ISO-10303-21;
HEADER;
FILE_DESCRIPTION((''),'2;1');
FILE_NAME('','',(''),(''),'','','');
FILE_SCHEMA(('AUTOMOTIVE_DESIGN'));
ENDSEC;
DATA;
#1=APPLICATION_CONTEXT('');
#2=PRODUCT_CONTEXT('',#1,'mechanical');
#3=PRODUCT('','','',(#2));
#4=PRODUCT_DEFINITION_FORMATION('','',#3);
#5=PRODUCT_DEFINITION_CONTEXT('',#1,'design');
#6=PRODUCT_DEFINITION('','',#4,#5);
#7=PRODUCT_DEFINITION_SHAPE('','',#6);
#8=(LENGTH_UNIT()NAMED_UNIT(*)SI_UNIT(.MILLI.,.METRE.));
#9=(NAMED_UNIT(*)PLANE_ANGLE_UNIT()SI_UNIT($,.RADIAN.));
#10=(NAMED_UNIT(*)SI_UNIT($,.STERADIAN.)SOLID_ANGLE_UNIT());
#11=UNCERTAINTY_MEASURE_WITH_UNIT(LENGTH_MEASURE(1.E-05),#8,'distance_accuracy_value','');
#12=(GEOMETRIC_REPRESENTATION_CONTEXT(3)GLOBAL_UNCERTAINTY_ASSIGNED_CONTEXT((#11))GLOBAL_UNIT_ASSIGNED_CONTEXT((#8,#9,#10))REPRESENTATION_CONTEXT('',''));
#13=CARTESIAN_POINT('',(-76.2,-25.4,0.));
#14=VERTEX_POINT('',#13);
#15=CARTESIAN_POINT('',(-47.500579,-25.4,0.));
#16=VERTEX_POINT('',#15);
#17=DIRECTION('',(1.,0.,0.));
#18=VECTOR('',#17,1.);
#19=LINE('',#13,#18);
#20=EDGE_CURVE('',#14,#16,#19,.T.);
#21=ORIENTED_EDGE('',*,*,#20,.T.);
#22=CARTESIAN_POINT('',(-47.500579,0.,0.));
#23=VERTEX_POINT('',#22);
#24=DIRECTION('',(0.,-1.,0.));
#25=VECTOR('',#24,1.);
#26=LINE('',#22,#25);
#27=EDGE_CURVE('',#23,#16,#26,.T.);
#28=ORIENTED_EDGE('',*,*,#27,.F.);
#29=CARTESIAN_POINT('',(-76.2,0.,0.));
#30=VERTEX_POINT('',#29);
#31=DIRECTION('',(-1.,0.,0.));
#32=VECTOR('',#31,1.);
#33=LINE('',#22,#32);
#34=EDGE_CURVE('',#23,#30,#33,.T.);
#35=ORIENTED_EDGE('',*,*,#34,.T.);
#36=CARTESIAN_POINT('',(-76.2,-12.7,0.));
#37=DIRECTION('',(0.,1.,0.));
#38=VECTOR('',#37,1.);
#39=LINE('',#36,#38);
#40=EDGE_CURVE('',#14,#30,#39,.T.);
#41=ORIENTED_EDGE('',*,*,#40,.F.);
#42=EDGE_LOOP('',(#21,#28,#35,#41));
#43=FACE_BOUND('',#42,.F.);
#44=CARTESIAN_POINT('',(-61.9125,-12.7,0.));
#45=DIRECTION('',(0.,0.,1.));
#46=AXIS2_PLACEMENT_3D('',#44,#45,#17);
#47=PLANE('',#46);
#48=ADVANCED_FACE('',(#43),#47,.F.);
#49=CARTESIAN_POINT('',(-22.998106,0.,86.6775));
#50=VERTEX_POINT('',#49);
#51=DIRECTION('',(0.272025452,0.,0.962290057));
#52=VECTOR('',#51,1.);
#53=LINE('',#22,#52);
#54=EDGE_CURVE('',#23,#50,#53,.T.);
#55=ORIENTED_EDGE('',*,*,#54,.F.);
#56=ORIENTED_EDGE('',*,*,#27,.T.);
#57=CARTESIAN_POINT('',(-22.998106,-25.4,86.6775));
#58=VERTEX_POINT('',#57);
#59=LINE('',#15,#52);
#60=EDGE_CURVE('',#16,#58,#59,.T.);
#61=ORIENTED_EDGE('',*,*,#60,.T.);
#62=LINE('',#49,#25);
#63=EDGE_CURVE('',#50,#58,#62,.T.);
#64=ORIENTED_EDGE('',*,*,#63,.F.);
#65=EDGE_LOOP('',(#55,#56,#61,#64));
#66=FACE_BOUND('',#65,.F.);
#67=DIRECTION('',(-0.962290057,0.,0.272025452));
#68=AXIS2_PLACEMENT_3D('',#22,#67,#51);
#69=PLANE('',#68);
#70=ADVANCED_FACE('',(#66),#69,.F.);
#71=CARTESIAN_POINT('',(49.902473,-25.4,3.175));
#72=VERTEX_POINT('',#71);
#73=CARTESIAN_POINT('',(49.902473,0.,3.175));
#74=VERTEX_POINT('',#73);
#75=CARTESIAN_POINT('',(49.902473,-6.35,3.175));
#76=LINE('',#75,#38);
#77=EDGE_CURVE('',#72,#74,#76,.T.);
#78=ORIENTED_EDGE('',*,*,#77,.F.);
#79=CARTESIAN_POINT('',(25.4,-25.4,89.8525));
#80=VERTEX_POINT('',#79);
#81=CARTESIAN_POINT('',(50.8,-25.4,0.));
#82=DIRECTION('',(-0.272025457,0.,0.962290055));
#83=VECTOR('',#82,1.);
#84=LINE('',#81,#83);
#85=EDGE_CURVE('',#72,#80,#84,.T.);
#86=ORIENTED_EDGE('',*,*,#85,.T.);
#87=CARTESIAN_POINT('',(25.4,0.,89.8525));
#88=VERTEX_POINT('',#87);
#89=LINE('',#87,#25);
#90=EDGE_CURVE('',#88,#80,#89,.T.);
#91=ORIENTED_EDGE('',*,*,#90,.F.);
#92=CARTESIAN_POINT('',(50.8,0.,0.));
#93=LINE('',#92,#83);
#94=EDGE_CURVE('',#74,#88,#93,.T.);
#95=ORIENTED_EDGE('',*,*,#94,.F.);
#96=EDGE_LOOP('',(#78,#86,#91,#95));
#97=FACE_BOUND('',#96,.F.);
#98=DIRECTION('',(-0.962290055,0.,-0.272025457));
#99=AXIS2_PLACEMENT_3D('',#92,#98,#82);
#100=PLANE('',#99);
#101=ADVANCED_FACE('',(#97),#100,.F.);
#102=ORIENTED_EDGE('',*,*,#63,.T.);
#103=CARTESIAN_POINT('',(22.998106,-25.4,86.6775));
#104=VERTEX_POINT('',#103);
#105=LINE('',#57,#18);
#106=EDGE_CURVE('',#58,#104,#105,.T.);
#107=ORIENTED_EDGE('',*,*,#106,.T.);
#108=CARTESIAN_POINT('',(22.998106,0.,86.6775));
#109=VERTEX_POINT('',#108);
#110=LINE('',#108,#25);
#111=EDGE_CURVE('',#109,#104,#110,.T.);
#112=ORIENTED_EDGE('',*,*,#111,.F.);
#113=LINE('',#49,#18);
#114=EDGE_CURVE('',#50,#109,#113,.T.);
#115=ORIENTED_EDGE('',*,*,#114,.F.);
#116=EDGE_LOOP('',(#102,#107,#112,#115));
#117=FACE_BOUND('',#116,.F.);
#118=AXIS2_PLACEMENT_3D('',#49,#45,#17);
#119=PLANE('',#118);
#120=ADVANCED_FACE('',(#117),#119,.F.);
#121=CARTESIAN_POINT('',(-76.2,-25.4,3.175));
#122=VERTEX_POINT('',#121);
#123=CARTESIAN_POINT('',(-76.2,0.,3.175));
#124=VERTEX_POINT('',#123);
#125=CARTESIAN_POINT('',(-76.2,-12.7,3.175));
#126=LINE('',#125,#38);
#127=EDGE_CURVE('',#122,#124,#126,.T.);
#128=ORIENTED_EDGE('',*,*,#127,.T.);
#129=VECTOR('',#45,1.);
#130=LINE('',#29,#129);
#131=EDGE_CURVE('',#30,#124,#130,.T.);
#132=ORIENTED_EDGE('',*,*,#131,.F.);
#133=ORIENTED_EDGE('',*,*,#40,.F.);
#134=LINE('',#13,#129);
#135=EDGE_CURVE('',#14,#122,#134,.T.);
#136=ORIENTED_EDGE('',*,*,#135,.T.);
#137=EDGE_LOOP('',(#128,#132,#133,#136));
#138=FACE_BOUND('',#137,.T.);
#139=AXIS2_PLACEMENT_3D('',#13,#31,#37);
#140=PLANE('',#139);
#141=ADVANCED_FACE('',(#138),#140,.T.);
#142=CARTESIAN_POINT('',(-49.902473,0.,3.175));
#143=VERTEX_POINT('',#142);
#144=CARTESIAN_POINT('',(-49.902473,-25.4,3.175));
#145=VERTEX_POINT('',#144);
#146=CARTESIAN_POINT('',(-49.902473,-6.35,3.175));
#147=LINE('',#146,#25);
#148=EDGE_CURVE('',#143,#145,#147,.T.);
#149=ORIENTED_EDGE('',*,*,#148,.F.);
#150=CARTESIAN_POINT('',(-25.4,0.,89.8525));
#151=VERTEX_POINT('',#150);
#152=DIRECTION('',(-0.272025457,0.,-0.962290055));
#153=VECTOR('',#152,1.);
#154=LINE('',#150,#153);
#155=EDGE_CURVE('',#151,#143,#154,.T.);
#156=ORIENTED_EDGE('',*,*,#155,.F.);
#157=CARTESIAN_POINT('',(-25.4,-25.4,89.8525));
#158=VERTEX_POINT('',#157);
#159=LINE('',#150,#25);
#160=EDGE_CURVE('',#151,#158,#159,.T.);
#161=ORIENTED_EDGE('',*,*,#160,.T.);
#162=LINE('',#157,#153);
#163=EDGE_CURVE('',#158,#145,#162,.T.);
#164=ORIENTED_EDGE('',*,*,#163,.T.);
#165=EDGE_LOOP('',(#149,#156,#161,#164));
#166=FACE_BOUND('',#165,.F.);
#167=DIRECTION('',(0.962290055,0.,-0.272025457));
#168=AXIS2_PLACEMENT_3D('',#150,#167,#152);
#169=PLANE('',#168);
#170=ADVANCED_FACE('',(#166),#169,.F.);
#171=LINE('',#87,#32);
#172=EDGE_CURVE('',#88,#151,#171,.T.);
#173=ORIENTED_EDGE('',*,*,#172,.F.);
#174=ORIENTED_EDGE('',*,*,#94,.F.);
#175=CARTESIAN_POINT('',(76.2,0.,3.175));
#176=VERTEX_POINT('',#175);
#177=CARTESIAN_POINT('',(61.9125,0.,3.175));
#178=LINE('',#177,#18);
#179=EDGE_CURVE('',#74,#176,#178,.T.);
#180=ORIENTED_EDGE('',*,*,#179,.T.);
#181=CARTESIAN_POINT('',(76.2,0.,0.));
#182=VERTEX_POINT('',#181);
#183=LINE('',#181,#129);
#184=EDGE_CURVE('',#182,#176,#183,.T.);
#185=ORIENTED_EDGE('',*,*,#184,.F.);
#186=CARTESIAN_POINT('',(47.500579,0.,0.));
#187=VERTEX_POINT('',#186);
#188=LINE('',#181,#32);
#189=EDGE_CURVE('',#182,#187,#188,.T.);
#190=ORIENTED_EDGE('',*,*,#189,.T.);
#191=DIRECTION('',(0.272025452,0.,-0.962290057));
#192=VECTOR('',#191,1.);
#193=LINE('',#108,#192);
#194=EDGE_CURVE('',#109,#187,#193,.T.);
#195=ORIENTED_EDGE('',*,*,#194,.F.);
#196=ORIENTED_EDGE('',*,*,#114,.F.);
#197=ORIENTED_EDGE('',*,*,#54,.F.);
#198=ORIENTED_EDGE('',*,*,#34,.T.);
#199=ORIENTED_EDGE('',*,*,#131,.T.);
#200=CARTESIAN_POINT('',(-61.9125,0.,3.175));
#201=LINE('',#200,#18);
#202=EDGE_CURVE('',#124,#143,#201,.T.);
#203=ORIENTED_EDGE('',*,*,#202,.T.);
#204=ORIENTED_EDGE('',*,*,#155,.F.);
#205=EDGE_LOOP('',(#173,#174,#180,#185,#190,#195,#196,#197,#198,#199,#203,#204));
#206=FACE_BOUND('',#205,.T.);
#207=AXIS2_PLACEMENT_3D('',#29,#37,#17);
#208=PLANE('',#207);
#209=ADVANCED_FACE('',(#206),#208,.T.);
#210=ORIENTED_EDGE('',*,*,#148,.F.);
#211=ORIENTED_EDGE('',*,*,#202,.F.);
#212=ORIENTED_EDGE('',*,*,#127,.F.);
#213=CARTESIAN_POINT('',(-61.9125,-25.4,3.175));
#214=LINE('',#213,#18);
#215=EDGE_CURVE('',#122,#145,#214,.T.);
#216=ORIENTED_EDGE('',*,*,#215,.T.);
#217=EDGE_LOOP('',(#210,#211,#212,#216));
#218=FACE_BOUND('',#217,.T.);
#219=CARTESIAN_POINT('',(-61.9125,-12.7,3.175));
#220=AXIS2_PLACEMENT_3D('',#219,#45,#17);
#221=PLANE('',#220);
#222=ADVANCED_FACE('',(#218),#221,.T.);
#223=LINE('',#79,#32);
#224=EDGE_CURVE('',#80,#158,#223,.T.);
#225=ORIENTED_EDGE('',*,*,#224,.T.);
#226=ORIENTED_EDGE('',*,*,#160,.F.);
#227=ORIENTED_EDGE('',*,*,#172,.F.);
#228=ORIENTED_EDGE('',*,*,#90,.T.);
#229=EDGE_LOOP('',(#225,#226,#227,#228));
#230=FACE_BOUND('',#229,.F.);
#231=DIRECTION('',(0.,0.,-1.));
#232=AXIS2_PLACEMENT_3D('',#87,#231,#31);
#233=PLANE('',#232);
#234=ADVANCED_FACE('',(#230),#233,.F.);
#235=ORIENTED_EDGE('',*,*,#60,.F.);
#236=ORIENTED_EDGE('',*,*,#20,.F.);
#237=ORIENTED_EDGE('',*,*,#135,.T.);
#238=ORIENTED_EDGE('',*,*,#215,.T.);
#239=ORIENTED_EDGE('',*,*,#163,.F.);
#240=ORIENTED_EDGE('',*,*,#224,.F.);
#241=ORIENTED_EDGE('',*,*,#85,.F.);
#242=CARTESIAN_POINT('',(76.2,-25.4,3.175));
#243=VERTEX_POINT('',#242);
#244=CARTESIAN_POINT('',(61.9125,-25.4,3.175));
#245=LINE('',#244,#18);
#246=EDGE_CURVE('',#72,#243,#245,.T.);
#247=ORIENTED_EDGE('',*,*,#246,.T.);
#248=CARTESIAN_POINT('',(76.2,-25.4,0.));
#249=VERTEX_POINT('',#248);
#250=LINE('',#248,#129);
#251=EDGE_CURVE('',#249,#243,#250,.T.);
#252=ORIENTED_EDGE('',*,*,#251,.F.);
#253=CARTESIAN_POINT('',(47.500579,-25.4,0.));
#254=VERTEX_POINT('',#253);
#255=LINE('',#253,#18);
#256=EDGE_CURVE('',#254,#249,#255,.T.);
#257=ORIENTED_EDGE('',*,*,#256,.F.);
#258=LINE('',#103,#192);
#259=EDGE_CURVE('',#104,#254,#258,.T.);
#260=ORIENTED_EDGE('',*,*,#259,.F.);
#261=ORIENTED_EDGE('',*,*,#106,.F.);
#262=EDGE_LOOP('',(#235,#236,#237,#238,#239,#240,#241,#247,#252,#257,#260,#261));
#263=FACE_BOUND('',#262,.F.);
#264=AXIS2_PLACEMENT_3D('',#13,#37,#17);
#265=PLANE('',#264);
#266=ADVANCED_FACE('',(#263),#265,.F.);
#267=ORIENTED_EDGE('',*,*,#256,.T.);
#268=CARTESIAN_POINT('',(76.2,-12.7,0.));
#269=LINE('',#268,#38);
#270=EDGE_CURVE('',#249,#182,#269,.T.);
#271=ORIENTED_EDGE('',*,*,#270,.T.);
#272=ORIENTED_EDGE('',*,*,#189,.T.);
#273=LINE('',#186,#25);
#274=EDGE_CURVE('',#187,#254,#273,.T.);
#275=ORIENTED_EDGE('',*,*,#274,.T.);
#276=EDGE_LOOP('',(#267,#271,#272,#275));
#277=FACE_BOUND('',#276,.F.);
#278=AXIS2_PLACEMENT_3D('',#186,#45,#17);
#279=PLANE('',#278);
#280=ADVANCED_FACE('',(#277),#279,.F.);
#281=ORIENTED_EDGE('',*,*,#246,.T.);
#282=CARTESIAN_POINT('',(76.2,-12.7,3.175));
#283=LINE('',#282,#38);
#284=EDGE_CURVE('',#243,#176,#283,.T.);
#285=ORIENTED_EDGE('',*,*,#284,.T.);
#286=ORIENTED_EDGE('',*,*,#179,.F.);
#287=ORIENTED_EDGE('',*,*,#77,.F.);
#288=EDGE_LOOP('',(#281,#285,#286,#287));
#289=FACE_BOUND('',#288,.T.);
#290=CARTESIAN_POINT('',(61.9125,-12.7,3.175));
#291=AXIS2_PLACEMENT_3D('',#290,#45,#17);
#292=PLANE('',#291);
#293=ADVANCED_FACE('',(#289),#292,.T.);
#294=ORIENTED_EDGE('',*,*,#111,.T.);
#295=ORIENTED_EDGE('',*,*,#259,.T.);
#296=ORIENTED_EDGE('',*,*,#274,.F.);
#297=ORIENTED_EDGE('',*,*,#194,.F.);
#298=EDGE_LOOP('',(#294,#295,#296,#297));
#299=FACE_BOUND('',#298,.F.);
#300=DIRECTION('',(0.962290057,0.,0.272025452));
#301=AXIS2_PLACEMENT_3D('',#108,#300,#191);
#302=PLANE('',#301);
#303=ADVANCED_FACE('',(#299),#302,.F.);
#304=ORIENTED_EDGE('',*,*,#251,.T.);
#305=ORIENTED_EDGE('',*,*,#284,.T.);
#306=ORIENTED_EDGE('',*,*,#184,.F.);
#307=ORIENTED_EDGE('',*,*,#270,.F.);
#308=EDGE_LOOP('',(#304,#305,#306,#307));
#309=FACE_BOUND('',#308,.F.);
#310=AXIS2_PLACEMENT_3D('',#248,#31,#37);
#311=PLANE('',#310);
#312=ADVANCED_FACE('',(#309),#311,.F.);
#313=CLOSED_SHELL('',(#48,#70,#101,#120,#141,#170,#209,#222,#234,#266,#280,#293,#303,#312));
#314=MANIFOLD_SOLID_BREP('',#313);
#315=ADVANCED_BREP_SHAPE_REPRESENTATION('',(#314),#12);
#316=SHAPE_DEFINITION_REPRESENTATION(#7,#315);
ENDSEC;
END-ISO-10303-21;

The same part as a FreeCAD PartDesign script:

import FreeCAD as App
import Part
import Sketcher

V = App.Vector
Q = App.Units.Quantity


def add_polygon(sketch, points):
    """Adds a closed chain of lines whose ends are joined by coincident constraints."""
    first, n = sketch.GeometryCount, len(points)
    for a, b in zip(points, points[1:] + points[:1]):
        sketch.addGeometry(Part.LineSegment(App.Vector(*a, 0), App.Vector(*b, 0)), False)
    for i in range(n):
        sketch.addConstraint(Sketcher.Constraint("Coincident", first + i, 2, first + (i + 1) % n, 1))

doc = App.newDocument("Part")
params = doc.addObject("Spreadsheet::Sheet", "Params")
for row, (alias, value) in enumerate([
    ("sketch1_width", "2 in"),
    ("pad1_length", "1 in"),
    ("sketch2_height", "1 in"),
    ("sketch2_width", "1.125 in"),
    ("pad2_length", "0.125 in"),
], start=1):
    params.set(f"A{row}", alias)
    params.set(f"B{row}", "=" + value)
    params.setAlias(f"B{row}", alias)

body = doc.addObject("PartDesign::Body", "Body")

sketch1 = doc.addObject("Sketcher::SketchObject", "Sketch")
body.addObject(sketch1)
sketch1.AttachmentSupport = (doc.XZ_Plane, [""])
sketch1.MapMode = "FlatFace"
add_polygon(sketch1, [(-23, 86.7), (23, 86.7), (47.5, 0), (50.8, 0), (25.4, 89.9), (-25.4, 89.9), (-50.8, 0), (-47.5, 0)])
sketch1.addConstraint([
    Sketcher.Constraint("Horizontal", 0),
    Sketcher.Constraint("Horizontal", 2),
    Sketcher.Constraint("Horizontal", 4),
    Sketcher.Constraint("Horizontal", 6),
    Sketcher.Constraint("Symmetric", 2, 2, 5, 2, -1, 1),
    Sketcher.Constraint("Symmetric", 1, 2, 6, 2, -2),
    Sketcher.Constraint("Parallel", 1, 3),
    Sketcher.Constraint("Parallel", 5, 7),
    Sketcher.Constraint("Equal", 3, 5),
    Sketcher.Constraint("DistanceX", 4, 2, 4, 1, Q("2 in")),
    Sketcher.Constraint("DistanceX", -1, 1, 2, 2, Q("2 in")),
    Sketcher.Constraint("DistanceY", 0, 2, 3, 2, Q("0.125 in")),
    Sketcher.Constraint("DistanceY", -1, 1, 0, 2, Q("3.4125 in")),
    Sketcher.Constraint("DistanceX", 2, 1, 2, 2, 3.299421),
])
sketch1.setExpression("Constraints[17]", "Params.sketch1_width")
pad1 = doc.addObject("PartDesign::Pad", "Pad")
body.addObject(pad1)
pad1.Profile = sketch1
pad1.setExpression("Length", "Params.pad1_length")

sketch2 = doc.addObject("Sketcher::SketchObject", "Sketch001")
body.addObject(sketch2)
sketch2.AttachmentSupport = (doc.XY_Plane, [""])
sketch2.MapMode = "FlatFace"
add_polygon(sketch2, [(-76, 0), (-76, -25), (-48, -25), (-48, 0)])
add_polygon(sketch2, [(48, 0), (48, -25), (76, -25), (76, 0)])
sketch2.addConstraint([
    Sketcher.Constraint("Vertical", 0),
    Sketcher.Constraint("Horizontal", 1),
    Sketcher.Constraint("Vertical", 2),
    Sketcher.Constraint("Horizontal", 3),
    Sketcher.Constraint("Vertical", 4),
    Sketcher.Constraint("Horizontal", 5),
    Sketcher.Constraint("Vertical", 6),
    Sketcher.Constraint("Horizontal", 7),
    Sketcher.Constraint("Symmetric", 3, 2, 6, 2, -1, 1),
    Sketcher.Constraint("Symmetric", 1, 2, 4, 2, -2),
    Sketcher.Constraint("PointOnObject", 2, 2, -1),
    Sketcher.Constraint("DistanceY", 0, 2, 0, 1, Q("1 in")),
    Sketcher.Constraint("DistanceX", 0, 2, -1, 1, Q("3 in")),
    Sketcher.Constraint("DistanceX", 1, 1, 1, 2, Q("1.125 in")),
])
sketch2.setExpression("Constraints[19]", "Params.sketch2_height")
sketch2.setExpression("Constraints[21]", "Params.sketch2_width")
pad2 = doc.addObject("PartDesign::Pad", "Pad001")
body.addObject(pad2)
pad2.Profile = sketch2
pad2.setExpression("Length", "Params.pad2_length")

doc.recompute()
